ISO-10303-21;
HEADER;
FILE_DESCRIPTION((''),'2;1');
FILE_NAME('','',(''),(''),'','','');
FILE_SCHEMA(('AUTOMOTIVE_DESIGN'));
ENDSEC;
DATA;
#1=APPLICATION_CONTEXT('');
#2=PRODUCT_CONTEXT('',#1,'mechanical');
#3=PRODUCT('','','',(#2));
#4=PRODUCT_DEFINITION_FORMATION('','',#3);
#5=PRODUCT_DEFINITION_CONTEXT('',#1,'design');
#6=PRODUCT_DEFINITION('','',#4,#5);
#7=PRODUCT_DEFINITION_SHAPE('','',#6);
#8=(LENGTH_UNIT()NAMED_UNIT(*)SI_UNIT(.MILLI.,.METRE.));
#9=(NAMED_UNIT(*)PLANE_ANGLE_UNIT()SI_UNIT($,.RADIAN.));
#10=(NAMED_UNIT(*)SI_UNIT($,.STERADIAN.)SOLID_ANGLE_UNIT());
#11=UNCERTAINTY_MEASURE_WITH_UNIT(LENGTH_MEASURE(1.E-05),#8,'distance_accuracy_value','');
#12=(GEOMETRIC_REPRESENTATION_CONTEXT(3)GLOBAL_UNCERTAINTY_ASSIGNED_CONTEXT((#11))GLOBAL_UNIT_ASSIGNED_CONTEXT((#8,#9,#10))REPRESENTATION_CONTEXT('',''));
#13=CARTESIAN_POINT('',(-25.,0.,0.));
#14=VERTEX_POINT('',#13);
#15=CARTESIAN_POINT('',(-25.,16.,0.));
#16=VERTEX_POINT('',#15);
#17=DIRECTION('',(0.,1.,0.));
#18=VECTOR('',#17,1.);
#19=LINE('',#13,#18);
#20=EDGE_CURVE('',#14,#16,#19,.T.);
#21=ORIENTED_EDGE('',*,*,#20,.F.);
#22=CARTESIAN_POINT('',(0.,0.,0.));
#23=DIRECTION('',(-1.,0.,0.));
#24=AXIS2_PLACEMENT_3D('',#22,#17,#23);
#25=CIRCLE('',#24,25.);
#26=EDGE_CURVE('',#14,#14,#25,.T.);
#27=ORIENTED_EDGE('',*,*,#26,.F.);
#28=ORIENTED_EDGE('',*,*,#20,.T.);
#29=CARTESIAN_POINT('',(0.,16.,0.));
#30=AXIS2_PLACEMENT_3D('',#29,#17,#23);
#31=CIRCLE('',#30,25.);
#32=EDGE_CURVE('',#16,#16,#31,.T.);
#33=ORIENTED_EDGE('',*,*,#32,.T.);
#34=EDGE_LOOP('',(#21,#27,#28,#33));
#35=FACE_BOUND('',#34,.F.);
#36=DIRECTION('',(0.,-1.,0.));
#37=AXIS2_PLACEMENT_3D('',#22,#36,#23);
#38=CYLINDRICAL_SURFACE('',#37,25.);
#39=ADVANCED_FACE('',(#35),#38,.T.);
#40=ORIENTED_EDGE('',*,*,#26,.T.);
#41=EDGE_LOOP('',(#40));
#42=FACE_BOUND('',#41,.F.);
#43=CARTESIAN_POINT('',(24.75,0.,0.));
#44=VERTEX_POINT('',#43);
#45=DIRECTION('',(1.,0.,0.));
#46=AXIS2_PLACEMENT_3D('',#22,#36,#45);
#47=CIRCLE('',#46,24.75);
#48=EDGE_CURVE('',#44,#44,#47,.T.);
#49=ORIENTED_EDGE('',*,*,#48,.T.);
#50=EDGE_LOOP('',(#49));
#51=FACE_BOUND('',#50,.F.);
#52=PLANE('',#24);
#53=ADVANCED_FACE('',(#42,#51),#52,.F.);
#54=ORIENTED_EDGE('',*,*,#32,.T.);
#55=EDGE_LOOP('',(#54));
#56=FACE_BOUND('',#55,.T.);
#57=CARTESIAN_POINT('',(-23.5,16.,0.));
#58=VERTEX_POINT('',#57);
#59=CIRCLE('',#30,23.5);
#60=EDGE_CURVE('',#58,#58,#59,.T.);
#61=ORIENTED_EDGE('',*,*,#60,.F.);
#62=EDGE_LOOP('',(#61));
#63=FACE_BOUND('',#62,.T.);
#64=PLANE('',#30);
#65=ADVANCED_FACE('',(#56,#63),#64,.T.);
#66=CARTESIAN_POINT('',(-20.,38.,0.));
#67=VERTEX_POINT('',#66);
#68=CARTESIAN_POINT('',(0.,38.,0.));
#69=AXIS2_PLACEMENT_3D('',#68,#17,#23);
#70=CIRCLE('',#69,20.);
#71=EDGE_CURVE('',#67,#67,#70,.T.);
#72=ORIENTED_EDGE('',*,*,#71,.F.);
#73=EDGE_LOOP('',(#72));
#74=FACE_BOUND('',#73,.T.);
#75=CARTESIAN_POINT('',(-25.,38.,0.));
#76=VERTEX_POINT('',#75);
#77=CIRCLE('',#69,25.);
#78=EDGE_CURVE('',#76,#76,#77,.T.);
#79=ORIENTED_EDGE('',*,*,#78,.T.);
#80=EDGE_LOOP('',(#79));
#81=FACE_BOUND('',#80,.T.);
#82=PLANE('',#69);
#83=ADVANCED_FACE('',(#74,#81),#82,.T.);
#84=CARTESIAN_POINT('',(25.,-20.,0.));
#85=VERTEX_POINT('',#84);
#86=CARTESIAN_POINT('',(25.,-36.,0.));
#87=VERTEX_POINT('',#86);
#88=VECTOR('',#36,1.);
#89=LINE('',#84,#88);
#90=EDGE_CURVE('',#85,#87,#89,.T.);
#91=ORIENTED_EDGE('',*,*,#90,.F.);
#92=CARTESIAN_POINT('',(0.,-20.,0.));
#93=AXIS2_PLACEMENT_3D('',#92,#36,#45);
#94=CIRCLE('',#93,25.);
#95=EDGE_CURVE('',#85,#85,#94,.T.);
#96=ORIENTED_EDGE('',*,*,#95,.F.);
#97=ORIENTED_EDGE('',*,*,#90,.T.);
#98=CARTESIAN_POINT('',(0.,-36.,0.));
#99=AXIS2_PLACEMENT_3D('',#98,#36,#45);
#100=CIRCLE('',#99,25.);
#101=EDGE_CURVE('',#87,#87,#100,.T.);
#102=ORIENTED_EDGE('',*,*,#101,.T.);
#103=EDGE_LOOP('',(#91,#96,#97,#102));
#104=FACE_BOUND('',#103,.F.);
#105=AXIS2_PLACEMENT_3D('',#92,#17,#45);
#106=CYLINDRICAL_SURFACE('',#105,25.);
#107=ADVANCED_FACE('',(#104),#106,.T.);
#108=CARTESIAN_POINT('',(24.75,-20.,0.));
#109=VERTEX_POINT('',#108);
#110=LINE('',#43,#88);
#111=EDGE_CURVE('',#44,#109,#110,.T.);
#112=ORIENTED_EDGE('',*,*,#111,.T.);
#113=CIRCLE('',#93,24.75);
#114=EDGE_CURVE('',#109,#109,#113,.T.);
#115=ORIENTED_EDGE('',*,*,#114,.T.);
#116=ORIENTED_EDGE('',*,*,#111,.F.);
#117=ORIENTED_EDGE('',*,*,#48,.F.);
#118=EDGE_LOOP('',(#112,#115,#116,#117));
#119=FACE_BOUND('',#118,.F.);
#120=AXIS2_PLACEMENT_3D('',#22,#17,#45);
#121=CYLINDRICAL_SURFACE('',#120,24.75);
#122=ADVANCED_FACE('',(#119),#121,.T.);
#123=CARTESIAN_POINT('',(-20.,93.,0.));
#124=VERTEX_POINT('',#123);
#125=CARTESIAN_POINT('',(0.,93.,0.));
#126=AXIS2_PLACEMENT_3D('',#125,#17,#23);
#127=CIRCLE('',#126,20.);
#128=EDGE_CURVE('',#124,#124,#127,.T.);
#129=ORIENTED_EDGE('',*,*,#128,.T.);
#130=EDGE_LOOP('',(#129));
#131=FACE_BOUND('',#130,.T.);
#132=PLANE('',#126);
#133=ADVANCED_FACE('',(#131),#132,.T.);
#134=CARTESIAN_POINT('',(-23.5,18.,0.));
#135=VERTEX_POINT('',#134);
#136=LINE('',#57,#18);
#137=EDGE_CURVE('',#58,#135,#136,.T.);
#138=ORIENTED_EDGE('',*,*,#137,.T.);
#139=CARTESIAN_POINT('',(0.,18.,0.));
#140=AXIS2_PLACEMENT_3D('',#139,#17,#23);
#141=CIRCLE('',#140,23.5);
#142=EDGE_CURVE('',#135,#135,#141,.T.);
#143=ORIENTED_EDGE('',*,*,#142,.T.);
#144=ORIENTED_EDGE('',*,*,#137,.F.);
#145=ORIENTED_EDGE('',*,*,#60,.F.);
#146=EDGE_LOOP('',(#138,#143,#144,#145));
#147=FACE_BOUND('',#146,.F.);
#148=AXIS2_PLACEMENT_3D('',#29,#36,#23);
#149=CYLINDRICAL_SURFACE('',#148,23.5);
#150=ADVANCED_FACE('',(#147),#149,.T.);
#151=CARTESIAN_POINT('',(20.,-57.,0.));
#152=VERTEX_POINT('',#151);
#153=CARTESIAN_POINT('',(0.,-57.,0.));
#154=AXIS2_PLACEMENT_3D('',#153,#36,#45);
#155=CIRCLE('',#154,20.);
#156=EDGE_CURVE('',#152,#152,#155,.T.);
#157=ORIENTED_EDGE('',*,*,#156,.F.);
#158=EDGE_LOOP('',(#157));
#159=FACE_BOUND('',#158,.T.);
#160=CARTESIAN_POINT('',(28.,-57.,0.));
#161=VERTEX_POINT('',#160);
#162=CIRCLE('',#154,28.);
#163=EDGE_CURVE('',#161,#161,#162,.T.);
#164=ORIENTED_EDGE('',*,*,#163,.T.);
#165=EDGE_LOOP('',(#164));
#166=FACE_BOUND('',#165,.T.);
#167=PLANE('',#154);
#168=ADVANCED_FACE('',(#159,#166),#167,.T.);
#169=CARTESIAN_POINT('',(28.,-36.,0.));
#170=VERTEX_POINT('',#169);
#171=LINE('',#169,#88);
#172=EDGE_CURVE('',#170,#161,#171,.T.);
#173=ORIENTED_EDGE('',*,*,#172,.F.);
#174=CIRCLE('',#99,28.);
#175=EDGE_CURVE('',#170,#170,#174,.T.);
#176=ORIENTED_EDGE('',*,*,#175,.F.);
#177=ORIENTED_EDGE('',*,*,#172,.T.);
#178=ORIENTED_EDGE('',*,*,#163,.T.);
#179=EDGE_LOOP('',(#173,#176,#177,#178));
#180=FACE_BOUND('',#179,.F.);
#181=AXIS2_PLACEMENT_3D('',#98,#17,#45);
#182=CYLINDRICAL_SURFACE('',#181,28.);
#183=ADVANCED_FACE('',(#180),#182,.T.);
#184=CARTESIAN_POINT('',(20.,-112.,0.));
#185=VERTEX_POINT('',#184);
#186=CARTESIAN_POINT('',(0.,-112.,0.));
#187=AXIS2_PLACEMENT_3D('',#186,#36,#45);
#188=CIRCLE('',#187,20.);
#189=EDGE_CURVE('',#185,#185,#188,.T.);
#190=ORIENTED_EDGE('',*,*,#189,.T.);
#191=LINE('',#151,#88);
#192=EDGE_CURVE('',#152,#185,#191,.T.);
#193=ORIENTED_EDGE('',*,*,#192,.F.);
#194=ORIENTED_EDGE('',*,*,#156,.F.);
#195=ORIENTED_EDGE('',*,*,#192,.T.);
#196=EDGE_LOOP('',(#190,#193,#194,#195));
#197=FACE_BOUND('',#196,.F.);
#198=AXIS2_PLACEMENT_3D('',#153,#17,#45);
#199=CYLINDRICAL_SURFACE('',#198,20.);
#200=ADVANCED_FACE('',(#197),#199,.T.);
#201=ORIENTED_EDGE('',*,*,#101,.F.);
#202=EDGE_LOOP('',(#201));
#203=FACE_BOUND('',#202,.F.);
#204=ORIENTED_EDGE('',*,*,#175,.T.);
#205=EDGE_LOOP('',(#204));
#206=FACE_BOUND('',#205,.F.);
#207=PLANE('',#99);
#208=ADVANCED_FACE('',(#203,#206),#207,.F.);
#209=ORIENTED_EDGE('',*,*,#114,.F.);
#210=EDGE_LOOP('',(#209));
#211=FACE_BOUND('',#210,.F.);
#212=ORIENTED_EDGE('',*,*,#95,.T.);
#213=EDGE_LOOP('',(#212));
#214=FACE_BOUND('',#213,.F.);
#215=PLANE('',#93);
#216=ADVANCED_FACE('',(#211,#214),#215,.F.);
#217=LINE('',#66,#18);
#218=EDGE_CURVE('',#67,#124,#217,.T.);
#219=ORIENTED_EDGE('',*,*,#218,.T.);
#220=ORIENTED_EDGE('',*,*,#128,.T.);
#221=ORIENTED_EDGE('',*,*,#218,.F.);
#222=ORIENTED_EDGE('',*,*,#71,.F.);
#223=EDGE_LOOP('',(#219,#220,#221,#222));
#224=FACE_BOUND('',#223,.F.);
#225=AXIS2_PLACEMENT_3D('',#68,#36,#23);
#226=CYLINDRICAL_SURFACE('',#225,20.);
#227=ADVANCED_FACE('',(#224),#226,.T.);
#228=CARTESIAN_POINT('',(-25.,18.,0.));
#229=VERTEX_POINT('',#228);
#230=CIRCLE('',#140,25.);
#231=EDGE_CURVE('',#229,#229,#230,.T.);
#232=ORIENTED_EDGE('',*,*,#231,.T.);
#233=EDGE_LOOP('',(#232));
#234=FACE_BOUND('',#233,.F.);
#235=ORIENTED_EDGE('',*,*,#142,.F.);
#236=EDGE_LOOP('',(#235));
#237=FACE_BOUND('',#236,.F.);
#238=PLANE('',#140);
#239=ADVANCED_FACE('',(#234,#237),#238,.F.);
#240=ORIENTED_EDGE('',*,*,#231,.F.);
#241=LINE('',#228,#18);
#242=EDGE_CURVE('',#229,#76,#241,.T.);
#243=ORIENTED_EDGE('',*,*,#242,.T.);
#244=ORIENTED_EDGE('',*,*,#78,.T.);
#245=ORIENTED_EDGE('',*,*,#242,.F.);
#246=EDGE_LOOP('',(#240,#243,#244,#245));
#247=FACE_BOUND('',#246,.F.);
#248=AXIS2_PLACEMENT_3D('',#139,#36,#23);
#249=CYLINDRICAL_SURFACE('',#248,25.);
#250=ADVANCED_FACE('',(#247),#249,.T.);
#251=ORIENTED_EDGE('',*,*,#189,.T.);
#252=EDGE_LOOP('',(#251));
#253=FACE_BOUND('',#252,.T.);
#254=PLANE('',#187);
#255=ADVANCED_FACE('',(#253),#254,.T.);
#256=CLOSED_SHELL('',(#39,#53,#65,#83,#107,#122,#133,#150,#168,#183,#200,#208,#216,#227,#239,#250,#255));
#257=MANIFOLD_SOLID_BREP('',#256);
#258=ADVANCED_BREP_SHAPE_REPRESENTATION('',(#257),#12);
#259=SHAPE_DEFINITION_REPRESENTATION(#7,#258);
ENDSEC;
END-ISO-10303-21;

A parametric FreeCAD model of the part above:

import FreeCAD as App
import Part
import Sketcher

V = App.Vector

doc = App.newDocument("Part")
params = doc.addObject("Spreadsheet::Sheet", "Params")
for row, (alias, value) in enumerate([
    ("sketch1_diameter", "49.5 mm"),
    ("pad1_length", "20 mm"),
    ("sketch2_diameter", "50 mm"),
    ("pad2_length", "16 mm"),
    ("sketch3_diameter", "50 mm"),
    ("pad3_length", "16 mm"),
    ("sketch4_diameter", "56 mm"),
    ("pad4_length", "21 mm"),
    ("sketch5_diameter", "40 mm"),
    ("pad5_length", "55 mm"),
    ("sketch6_diameter", "47 mm"),
    ("pad6_length", "2 mm"),
    ("sketch7_diameter", "50 mm"),
    ("pad7_length", "20 mm"),
    ("sketch8_diameter", "40 mm"),
    ("pad8_length", "55 mm"),
], start=1):
    params.set(f"A{row}", alias)
    params.set(f"B{row}", "=" + value)
    params.setAlias(f"B{row}", alias)

body = doc.addObject("PartDesign::Body", "Body")

# Sketch on XZ plane
sketch1 = doc.addObject("Sketcher::SketchObject", "Sketch")
body.addObject(sketch1)
sketch1.AttachmentSupport = (doc.XZ_Plane, [""])
sketch1.MapMode = "FlatFace"
sketch1.addGeometry(Part.Circle(V(0, 0, 0), V(0, 0, 1), 24.75), False)
sketch1.addConstraint(Sketcher.Constraint("Coincident", 0, 3, -1, 1))
sketch1.addConstraint(Sketcher.Constraint("Diameter", 0, 49.5))
sketch1.setExpression("Constraints[1]", "Params.sketch1_diameter")
pad1 = doc.addObject("PartDesign::Pad", "Pad")
body.addObject(pad1)
pad1.Profile = sketch1
pad1.setExpression("Length", "Params.pad1_length")

# Sketch on XZ plane
sketch2 = doc.addObject("Sketcher::SketchObject", "Sketch001")
body.addObject(sketch2)
sketch2.AttachmentSupport = (doc.XZ_Plane, [""])
sketch2.MapMode = "FlatFace"
sketch2.AttachmentOffset = App.Placement(V(0, 0, 20), App.Rotation())
sketch2.addGeometry(Part.Circle(V(0, 0, 0), V(0, 0, 1), 25), False)
sketch2.addConstraint(Sketcher.Constraint("Coincident", 0, 3, -1, 1))
sketch2.addConstraint(Sketcher.Constraint("Diameter", 0, 50.0))
sketch2.setExpression("Constraints[1]", "Params.sketch2_diameter")
pad2 = doc.addObject("PartDesign::Pad", "Pad001")
body.addObject(pad2)
pad2.Profile = sketch2
pad2.setExpression("Length", "Params.pad2_length")

# Sketch on XZ plane
sketch3 = doc.addObject("Sketcher::SketchObject", "Sketch002")
body.addObject(sketch3)
sketch3.AttachmentSupport = (doc.XZ_Plane, [""])
sketch3.MapMode = "FlatFace"
sketch3.addGeometry(Part.Circle(V(0, 0, 0), V(0, 0, 1), 25), False)
sketch3.addConstraint(Sketcher.Constraint("Coincident", 0, 3, -1, 1))
sketch3.addConstraint(Sketcher.Constraint("Diameter", 0, 50.0))
sketch3.setExpression("Constraints[1]", "Params.sketch3_diameter")
pad3 = doc.addObject("PartDesign::Pad", "Pad002")
body.addObject(pad3)
pad3.Profile = sketch3
pad3.setExpression("Length", "Params.pad3_length")
pad3.Reversed = True

# Sketch on XZ plane
sketch4 = doc.addObject("Sketcher::SketchObject", "Sketch003")
body.addObject(sketch4)
sketch4.AttachmentSupport = (doc.XZ_Plane, [""])
sketch4.MapMode = "FlatFace"
sketch4.AttachmentOffset = App.Placement(V(0, 0, 36), App.Rotation())
sketch4.addGeometry(Part.Circle(V(0, 0, 0), V(0, 0, 1), 28), False)
sketch4.addConstraint(Sketcher.Constraint("Coincident", 0, 3, -1, 1))
sketch4.addConstraint(Sketcher.Constraint("Diameter", 0, 56.0))
sketch4.setExpression("Constraints[1]", "Params.sketch4_diameter")
pad4 = doc.addObject("PartDesign::Pad", "Pad003")
body.addObject(pad4)
pad4.Profile = sketch4
pad4.setExpression("Length", "Params.pad4_length")

# Sketch on XZ plane
sketch5 = doc.addObject("Sketcher::SketchObject", "Sketch004")
body.addObject(sketch5)
sketch5.AttachmentSupport = (doc.XZ_Plane, [""])
sketch5.MapMode = "FlatFace"
sketch5.AttachmentOffset = App.Placement(V(0, 0, 57), App.Rotation())
sketch5.addGeometry(Part.Circle(V(0, 0, 0), V(0, 0, 1), 20), False)
sketch5.addConstraint(Sketcher.Constraint("Coincident", 0, 3, -1, 1))
sketch5.addConstraint(Sketcher.Constraint("Diameter", 0, 40.0))
sketch5.setExpression("Constraints[1]", "Params.sketch5_diameter")
pad5 = doc.addObject("PartDesign::Pad", "Pad004")
body.addObject(pad5)
pad5.Profile = sketch5
pad5.setExpression("Length", "Params.pad5_length")

# Sketch on XZ plane
sketch6 = doc.addObject("Sketcher::SketchObject", "Sketch005")
body.addObject(sketch6)
sketch6.AttachmentSupport = (doc.XZ_Plane, [""])
sketch6.MapMode = "FlatFace"
sketch6.AttachmentOffset = App.Placement(V(0, 0, -16), App.Rotation())
sketch6.addGeometry(Part.Circle(V(0, 0, 0), V(0, 0, 1), 23.5), False)
sketch6.addConstraint(Sketcher.Constraint("Coincident", 0, 3, -1, 1))
sketch6.addConstraint(Sketcher.Constraint("Diameter", 0, 47.0))
sketch6.setExpression("Constraints[1]", "Params.sketch6_diameter")
pad6 = doc.addObject("PartDesign::Pad", "Pad005")
body.addObject(pad6)
pad6.Profile = sketch6
pad6.setExpression("Length", "Params.pad6_length")
pad6.Reversed = True

# Sketch on XZ plane
sketch7 = doc.addObject("Sketcher::SketchObject", "Sketch006")
body.addObject(sketch7)
sketch7.AttachmentSupport = (doc.XZ_Plane, [""])
sketch7.MapMode = "FlatFace"
sketch7.AttachmentOffset = App.Placement(V(0, 0, -18), App.Rotation())
sketch7.addGeometry(Part.Circle(V(0, 0, 0), V(0, 0, 1), 25), False)
sketch7.addConstraint(Sketcher.Constraint("Coincident", 0, 3, -1, 1))
sketch7.addConstraint(Sketcher.Constraint("Diameter", 0, 50.0))
sketch7.setExpression("Constraints[1]", "Params.sketch7_diameter")
pad7 = doc.addObject("PartDesign::Pad", "Pad006")
body.addObject(pad7)
pad7.Profile = sketch7
pad7.setExpression("Length", "Params.pad7_length")
pad7.Reversed = True

# Sketch on XZ plane
sketch8 = doc.addObject("Sketcher::SketchObject", "Sketch007")
body.addObject(sketch8)
sketch8.AttachmentSupport = (doc.XZ_Plane, [""])
sketch8.MapMode = "FlatFace"
sketch8.AttachmentOffset = App.Placement(V(0, 0, -38), App.Rotation())
sketch8.addGeometry(Part.Circle(V(0, 0, 0), V(0, 0, 1), 20), False)
sketch8.addConstraint(Sketcher.Constraint("Coincident", 0, 3, -1, 1))
sketch8.addConstraint(Sketcher.Constraint("Diameter", 0, 40.0))
sketch8.setExpression("Constraints[1]", "Params.sketch8_diameter")
pad8 = doc.addObject("PartDesign::Pad", "Pad007")
body.addObject(pad8)
pad8.Profile = sketch8
pad8.setExpression("Length", "Params.pad8_length")
pad8.Reversed = True

doc.recompute()
